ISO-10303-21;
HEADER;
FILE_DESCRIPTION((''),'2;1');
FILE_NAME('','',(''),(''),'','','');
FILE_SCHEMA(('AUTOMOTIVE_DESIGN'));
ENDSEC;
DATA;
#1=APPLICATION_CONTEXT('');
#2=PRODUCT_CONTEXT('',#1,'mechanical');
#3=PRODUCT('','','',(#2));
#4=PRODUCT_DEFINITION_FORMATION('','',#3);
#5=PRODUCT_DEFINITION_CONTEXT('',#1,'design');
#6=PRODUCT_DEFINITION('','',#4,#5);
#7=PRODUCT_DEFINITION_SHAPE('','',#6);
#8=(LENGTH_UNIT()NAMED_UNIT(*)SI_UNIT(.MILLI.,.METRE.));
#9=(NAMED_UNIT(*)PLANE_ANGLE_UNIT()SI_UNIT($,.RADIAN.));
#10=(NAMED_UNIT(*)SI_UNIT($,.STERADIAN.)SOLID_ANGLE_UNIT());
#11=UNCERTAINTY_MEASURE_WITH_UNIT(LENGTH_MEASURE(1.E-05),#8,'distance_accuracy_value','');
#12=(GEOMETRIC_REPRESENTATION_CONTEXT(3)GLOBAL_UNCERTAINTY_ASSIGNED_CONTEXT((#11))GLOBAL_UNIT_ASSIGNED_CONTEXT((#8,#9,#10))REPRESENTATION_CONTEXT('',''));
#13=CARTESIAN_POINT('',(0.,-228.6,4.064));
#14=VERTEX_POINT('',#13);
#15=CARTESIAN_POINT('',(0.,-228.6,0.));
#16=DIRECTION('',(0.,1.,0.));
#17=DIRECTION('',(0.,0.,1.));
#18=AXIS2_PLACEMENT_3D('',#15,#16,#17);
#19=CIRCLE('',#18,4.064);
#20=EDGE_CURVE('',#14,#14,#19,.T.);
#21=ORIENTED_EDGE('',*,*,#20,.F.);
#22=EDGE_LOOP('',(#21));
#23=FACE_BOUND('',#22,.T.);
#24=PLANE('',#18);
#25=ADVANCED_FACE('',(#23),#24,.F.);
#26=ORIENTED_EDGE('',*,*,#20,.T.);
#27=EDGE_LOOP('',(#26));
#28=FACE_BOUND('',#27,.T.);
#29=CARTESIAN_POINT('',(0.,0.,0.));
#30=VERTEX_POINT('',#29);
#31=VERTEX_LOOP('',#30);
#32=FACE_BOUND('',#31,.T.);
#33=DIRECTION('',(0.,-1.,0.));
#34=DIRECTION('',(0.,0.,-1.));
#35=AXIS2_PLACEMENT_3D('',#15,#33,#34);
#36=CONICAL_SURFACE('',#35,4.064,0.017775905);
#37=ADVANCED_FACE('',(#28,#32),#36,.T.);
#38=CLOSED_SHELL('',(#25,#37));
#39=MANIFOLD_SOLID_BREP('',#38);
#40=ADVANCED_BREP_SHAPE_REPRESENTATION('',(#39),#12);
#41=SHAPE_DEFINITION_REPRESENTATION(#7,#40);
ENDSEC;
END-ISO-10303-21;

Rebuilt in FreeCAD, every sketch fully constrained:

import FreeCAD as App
import Part
import Sketcher
Q = App.Units.Quantity

doc = App.newDocument("Part")
body = doc.addObject("PartDesign::Body", "Body")

# Sketch on YZ plane
sketch1 = body.newObject("Sketcher::SketchObject", "Sketch")
sketch1.AttachmentSupport = (doc.getObject("YZ_Plane"), [""])
sketch1.MapMode = "FlatFace"
sketch1.addGeometry(Part.LineSegment(App.Vector(0, 0, 0), App.Vector(-228.6, 0, 0)), False)
sketch1.addGeometry(Part.LineSegment(App.Vector(-228.6, 0, 0), App.Vector(-228.6, -4.1, 0)), False)
sketch1.addGeometry(Part.LineSegment(App.Vector(-228.6, -4.1, 0), App.Vector(0, 0, 0)), False)
sketch1.addConstraint(Sketcher.Constraint("Coincident", 0, 2, 1, 1))
sketch1.addConstraint(Sketcher.Constraint("Coincident", 1, 2, 2, 1))
sketch1.addConstraint(Sketcher.Constraint("Coincident", 2, 2, 0, 1))
sketch1.addConstraint(Sketcher.Constraint("Horizontal", 0))
sketch1.addConstraint(Sketcher.Constraint("Vertical", 1))
sketch1.addConstraint(Sketcher.Constraint("Coincident", 2, 2, -1, 1))
sketch1.addConstraint(Sketcher.Constraint("DistanceX", 0, 2, 0, 1, Q("9 in")))
sketch1.addConstraint(Sketcher.Constraint("DistanceY", 1, 2, 1, 1, Q("0.16 in")))
revolution = body.newObject("PartDesign::Revolution", "Revolution")
revolution.Profile = sketch1
revolution.ReferenceAxis = (sketch1, ["H_Axis"])
revolution.Angle = 360

doc.recompute()
